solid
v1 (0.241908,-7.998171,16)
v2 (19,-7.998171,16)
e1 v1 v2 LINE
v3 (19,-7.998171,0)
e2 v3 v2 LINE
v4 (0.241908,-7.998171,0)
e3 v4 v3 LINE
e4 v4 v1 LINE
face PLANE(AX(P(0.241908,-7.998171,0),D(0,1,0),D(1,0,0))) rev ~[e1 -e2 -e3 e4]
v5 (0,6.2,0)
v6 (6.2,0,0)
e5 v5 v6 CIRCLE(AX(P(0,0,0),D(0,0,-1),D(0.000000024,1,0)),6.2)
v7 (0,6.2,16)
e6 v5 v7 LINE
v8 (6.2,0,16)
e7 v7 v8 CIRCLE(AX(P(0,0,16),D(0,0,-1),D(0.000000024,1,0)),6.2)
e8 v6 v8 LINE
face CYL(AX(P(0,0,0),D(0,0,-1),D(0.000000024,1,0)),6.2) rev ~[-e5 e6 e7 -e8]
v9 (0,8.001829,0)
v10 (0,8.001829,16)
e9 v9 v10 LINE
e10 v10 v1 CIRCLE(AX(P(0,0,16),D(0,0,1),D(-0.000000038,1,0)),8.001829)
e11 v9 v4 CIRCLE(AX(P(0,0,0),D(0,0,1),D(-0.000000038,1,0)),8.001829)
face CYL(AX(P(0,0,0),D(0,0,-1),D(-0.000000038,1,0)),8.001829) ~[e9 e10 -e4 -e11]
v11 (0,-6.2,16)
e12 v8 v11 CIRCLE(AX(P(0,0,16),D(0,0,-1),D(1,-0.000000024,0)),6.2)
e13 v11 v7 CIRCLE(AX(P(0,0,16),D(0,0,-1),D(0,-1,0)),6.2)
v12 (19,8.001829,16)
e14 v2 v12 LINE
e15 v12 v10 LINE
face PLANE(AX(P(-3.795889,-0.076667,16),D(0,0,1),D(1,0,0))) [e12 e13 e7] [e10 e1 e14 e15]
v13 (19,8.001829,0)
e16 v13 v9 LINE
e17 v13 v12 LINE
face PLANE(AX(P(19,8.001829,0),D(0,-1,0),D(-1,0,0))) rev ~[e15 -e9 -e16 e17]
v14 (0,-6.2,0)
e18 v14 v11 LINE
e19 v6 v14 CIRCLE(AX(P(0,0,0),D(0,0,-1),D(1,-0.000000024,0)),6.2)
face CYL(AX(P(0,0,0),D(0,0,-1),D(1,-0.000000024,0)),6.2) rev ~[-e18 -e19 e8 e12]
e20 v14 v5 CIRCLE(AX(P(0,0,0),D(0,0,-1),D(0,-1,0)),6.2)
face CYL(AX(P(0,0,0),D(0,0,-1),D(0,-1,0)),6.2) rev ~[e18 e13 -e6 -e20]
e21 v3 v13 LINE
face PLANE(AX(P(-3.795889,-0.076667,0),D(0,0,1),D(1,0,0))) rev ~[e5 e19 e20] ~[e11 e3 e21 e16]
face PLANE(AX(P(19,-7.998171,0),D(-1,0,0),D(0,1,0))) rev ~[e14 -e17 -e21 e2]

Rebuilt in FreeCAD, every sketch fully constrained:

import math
import FreeCAD as App
import Part
import Sketcher
from FreeCAD import Vector

doc = App.newDocument("Part")
body = doc.addObject("PartDesign::Body", "Body")

# Sketch on XY plane
sketch1 = doc.addObject("Sketcher::SketchObject", "Sketch")
body.addObject(sketch1)
sketch1.AttachmentSupport = (doc.XY_Plane, [""])
sketch1.MapMode = "FlatFace"
sketch1.addGeometry([
    Part.ArcOfCircle(Part.Circle(Vector(0, 0, 0), Vector(0, 0, 1), 8), math.radians(90), math.radians(272)),  # 0
    Part.LineSegment(Vector(0, -8, 0), Vector(19, -8, 0)),  # 1
    Part.LineSegment(Vector(19, -8, 0), Vector(19, 8, 0)),  # 2
    Part.LineSegment(Vector(19, 8, 0), Vector(0, 8, 0)),  # 3
    Part.ArcOfCircle(Part.Circle(Vector(0, 0, 0), Vector(0, 0, 1), 6), math.radians(90), math.radians(270)),  # 4
    Part.ArcOfCircle(Part.Circle(Vector(0, 0, 0), Vector(0, 0, 1), 6), math.radians(0), math.radians(90)),  # 5
    Part.ArcOfCircle(Part.Circle(Vector(0, 0, 0), Vector(0, 0, 1), 6), math.radians(-90), math.radians(0)),  # 6
], False)
sketch1.addConstraint([
    Sketcher.Constraint("Coincident", 0, 2, 1, 1),
    Sketcher.Constraint("Coincident", 1, 2, 2, 1),
    Sketcher.Constraint("Coincident", 2, 2, 3, 1),
    Sketcher.Constraint("Tangent", 3, 2, 0, 1),
    Sketcher.Constraint("Tangent", 4, 1, 5, 2),
    Sketcher.Constraint("Tangent", 5, 1, 6, 2),
    Sketcher.Constraint("Tangent", 6, 1, 4, 2),
    Sketcher.Constraint("Horizontal", 1),
    Sketcher.Constraint("Vertical", 2),
    Sketcher.Constraint("Horizontal", 3),
    Sketcher.Constraint("Coincident", 0, 3, -1, 1),
    Sketcher.Constraint("Coincident", 4, 3, -1, 1),
    Sketcher.Constraint("PointOnObject", 4, 1, -2),
    Sketcher.Constraint("PointOnObject", 5, 1, -1),
    Sketcher.Constraint("PointOnObject", 6, 1, -2),
    Sketcher.Constraint("Radius", 4, 6.2),
    Sketcher.Constraint("DistanceX", 3, 2, 3, 1, 19.0),
    Sketcher.Constraint("DistanceY", 2, 1, 2, 2, 16.0),
    Sketcher.Constraint("Radius", 0, 8.001829),
])
pad1 = doc.addObject("PartDesign::Pad", "Pad")
body.addObject(pad1)
pad1.Profile = sketch1
pad1.Length = 16

doc.recompute()
